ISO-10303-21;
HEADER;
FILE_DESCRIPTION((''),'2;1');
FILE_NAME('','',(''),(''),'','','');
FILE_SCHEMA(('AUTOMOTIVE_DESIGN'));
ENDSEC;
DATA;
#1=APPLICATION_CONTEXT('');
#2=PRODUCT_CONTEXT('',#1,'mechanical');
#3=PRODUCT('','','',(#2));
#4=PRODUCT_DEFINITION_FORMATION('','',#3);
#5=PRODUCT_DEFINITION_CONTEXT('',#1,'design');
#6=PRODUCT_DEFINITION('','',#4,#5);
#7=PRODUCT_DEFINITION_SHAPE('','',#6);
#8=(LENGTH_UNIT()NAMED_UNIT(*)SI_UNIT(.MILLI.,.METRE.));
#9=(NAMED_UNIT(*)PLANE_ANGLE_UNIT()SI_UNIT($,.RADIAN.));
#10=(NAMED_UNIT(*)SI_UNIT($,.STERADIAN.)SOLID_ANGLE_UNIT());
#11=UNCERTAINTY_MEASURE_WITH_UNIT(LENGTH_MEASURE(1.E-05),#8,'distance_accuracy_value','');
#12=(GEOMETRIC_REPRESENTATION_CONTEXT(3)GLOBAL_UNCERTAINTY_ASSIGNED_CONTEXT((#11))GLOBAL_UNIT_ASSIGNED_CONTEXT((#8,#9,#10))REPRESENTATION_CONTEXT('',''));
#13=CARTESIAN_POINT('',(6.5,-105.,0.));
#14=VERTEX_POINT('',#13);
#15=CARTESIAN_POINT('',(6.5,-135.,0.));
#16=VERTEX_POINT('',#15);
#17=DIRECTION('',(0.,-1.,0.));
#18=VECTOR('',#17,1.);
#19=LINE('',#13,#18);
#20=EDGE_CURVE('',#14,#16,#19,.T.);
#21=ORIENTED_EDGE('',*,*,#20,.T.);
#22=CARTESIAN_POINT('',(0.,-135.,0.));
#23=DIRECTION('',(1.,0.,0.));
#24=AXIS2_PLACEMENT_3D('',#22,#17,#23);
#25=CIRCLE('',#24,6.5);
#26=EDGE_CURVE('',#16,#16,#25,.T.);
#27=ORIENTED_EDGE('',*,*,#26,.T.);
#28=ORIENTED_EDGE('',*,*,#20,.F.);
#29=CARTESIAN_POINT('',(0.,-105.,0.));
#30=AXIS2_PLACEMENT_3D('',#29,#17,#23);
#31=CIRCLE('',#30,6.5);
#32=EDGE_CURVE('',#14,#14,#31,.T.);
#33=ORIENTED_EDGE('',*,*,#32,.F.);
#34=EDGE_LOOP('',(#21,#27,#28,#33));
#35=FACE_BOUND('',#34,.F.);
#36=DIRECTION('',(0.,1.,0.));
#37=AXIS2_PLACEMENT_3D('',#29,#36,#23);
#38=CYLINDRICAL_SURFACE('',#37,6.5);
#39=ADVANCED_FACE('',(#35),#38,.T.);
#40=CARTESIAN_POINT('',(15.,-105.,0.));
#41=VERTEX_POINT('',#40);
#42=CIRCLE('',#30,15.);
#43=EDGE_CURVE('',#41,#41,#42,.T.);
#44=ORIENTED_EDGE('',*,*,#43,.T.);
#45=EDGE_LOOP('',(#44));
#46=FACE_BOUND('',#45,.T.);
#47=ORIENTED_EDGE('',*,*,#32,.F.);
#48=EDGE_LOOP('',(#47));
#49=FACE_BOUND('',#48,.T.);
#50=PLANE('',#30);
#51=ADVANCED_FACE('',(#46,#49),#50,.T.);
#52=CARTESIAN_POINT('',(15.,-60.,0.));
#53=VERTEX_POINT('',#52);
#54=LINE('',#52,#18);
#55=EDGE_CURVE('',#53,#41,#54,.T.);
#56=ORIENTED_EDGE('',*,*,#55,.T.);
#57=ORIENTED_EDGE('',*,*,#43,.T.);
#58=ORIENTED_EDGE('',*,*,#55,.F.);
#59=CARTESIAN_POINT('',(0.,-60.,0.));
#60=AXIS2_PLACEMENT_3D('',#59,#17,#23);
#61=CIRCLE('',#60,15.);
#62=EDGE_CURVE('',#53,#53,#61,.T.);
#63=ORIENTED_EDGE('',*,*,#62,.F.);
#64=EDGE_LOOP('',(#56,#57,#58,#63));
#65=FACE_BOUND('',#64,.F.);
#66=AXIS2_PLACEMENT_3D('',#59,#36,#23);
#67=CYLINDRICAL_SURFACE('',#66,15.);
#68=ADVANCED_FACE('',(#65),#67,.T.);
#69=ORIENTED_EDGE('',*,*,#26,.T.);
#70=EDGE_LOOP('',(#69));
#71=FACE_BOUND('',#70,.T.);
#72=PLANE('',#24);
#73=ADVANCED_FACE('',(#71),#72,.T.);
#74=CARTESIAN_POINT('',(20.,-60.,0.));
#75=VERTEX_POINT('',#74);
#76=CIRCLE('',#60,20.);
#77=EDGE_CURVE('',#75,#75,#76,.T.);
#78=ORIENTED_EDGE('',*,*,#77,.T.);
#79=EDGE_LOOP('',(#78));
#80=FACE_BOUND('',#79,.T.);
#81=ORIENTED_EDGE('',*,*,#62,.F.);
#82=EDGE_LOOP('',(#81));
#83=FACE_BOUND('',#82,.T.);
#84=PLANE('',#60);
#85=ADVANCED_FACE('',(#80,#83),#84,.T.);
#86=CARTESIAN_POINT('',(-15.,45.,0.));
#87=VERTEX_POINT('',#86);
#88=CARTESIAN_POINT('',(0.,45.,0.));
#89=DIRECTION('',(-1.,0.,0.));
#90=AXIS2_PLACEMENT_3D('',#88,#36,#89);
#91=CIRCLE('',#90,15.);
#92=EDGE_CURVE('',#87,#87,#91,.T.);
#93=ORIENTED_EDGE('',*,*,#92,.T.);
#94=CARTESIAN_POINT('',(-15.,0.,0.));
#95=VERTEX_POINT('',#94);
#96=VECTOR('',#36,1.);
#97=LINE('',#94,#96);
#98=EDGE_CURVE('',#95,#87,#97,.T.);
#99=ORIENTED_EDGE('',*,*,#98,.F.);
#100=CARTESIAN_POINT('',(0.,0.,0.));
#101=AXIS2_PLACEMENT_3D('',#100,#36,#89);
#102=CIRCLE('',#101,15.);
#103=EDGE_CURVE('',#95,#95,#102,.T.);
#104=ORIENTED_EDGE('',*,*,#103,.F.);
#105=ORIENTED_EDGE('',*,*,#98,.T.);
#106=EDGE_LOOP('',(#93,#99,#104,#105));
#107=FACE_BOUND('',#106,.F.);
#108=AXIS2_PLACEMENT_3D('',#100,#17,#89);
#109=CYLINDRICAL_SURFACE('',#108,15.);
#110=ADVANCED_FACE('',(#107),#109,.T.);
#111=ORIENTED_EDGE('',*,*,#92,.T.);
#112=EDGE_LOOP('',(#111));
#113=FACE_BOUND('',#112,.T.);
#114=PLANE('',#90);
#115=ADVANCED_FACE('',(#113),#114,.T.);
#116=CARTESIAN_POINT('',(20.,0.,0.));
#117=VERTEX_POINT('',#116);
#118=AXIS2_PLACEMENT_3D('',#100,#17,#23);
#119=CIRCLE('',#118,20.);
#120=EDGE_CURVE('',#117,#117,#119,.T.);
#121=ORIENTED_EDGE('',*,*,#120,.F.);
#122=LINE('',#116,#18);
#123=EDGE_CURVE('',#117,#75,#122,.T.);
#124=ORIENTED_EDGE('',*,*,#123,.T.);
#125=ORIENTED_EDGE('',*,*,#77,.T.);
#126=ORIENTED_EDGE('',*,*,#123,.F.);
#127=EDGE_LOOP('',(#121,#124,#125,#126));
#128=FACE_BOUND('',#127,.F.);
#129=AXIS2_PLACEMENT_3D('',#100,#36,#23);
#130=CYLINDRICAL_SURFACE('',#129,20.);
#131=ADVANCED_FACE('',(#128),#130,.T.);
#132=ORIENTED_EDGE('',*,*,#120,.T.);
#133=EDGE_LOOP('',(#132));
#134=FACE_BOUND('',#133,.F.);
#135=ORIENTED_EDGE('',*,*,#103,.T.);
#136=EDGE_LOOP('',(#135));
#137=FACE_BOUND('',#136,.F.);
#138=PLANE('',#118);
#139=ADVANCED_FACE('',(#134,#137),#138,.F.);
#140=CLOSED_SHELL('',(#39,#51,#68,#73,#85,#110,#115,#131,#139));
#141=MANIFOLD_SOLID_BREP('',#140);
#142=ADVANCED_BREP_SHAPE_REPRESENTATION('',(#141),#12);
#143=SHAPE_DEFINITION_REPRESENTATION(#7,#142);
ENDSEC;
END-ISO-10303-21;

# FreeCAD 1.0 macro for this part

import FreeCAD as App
import Part
import Sketcher
from FreeCAD import Vector

doc = App.newDocument("Part")
body = doc.addObject("PartDesign::Body", "Body")

sketch1 = doc.addObject("Sketcher::SketchObject", "Sketch")
body.addObject(sketch1)
sketch1.AttachmentSupport = (doc.XZ_Plane, [""])
sketch1.MapMode = "FlatFace"
sketch1.addGeometry(Part.Circle(Vector(0, 0, 0), Vector(0, 0, 1), 20), False)
sketch1.addConstraint([
    Sketcher.Constraint("Coincident", 0, 3, -1, 1),
    Sketcher.Constraint("Diameter", 0, 40.0),
])
pad1 = doc.addObject("PartDesign::Pad", "Pad")
body.addObject(pad1)
pad1.Profile = sketch1
pad1.Length = 60

sketch2 = doc.addObject("Sketcher::SketchObject", "Sketch001")
body.addObject(sketch2)
sketch2.AttachmentSupport = (doc.XZ_Plane, [""])
sketch2.MapMode = "FlatFace"
sketch2.addGeometry(Part.Circle(Vector(0, 0, 0), Vector(0, 0, 1), 15), False)
sketch2.addConstraint([
    Sketcher.Constraint("Coincident", 0, 3, -1, 1),
    Sketcher.Constraint("Diameter", 0, 30.0),
])
pad2 = doc.addObject("PartDesign::Pad", "Pad001")
body.addObject(pad2)
pad2.Profile = sketch2
pad2.Length = 45
pad2.Reversed = True

sketch3 = doc.addObject("Sketcher::SketchObject", "Sketch002")
body.addObject(sketch3)
sketch3.AttachmentSupport = (doc.XZ_Plane, [""])
sketch3.MapMode = "FlatFace"
sketch3.AttachmentOffset = App.Placement(Vector(0, 0, 60), App.Rotation())
sketch3.addGeometry(Part.Circle(Vector(0, 0, 0), Vector(0, 0, 1), 15), False)
sketch3.addConstraint([
    Sketcher.Constraint("Coincident", 0, 3, -1, 1),
    Sketcher.Constraint("Diameter", 0, 30.0),
])
pad3 = doc.addObject("PartDesign::Pad", "Pad002")
body.addObject(pad3)
pad3.Profile = sketch3
pad3.Length = 45

sketch4 = doc.addObject("Sketcher::SketchObject", "Sketch003")
body.addObject(sketch4)
sketch4.AttachmentSupport = (doc.XZ_Plane, [""])
sketch4.MapMode = "FlatFace"
sketch4.AttachmentOffset = App.Placement(Vector(0, 0, 105), App.Rotation())
sketch4.addGeometry(Part.Circle(Vector(0, 0, 0), Vector(0, 0, 1), 6.5), False)
sketch4.addConstraint([
    Sketcher.Constraint("Coincident", 0, 3, -1, 1),
    Sketcher.Constraint("Diameter", 0, 13.0),
])
pad4 = doc.addObject("PartDesign::Pad", "Pad003")
body.addObject(pad4)
pad4.Profile = sketch4
pad4.Length = 30

doc.recompute()
